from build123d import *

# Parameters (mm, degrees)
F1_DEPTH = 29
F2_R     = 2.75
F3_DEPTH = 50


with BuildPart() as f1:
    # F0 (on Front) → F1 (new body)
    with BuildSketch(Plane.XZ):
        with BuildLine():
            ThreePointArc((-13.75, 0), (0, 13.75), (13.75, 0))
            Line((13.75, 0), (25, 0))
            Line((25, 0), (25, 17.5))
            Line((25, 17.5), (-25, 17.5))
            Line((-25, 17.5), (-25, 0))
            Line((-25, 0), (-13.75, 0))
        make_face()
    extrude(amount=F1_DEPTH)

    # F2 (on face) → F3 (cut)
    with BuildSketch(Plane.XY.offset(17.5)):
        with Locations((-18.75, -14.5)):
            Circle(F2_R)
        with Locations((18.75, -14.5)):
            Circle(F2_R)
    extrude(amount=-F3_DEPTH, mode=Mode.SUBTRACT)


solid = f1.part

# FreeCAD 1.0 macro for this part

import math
import FreeCAD as App
import Part
import Sketcher

doc = App.newDocument("Part")
body = doc.addObject("PartDesign::Body", "Body")

# Sketch on XZ plane
sketch1 = body.newObject("Sketcher::SketchObject", "Sketch")
sketch1.AttachmentSupport = (doc.getObject("XZ_Plane"), [""])
sketch1.MapMode = "FlatFace"
sketch1.addGeometry([
    Part.ArcOfCircle(Part.Circle(App.Vector(0, 0, 0), App.Vector(0, 0, 1), 14), math.radians(0), math.radians(180)),  # 0
    Part.LineSegment(App.Vector(14, 0, 0), App.Vector(25, 0, 0)),  # 1
    Part.LineSegment(App.Vector(25, 0, 0), App.Vector(25, 18, 0)),  # 2
    Part.LineSegment(App.Vector(25, 18, 0), App.Vector(-25, 18, 0)),  # 3
    Part.LineSegment(App.Vector(-25, 18, 0), App.Vector(-25, 0, 0)),  # 4
    Part.LineSegment(App.Vector(-25, 0, 0), App.Vector(-14, 0, 0)),  # 5
], False)
sketch1.addConstraint([
    Sketcher.Constraint("Coincident", 0, 1, 1, 1),
    Sketcher.Constraint("Coincident", 1, 2, 2, 1),
    Sketcher.Constraint("Coincident", 2, 2, 3, 1),
    Sketcher.Constraint("Coincident", 3, 2, 4, 1),
    Sketcher.Constraint("Coincident", 4, 2, 5, 1),
    Sketcher.Constraint("Coincident", 5, 2, 0, 2),
    Sketcher.Constraint("Horizontal", 1),
    Sketcher.Constraint("Vertical", 2),
    Sketcher.Constraint("Horizontal", 3),
    Sketcher.Constraint("Vertical", 4),
    Sketcher.Constraint("Horizontal", 5),
    Sketcher.Constraint("Coincident", 0, 3, -1, 1),
    Sketcher.Constraint("Symmetric", 1, 2, 4, 2, -1, 1),
    Sketcher.Constraint("PointOnObject", 0, 1, -1),
    Sketcher.Constraint("DistanceX", 3, 2, 3, 1, 50.0),
    Sketcher.Constraint("Radius", 0, 13.75),
    Sketcher.Constraint("DistanceY", 2, 1, 2, 2, 17.5),
])
pad1 = body.newObject("PartDesign::Pad", "Pad")
pad1.Profile = sketch1
pad1.Length = 29

# Sketch on XY plane
sketch2 = body.newObject("Sketcher::SketchObject", "Sketch001")
sketch2.AttachmentSupport = (doc.getObject("XY_Plane"), [""])
sketch2.MapMode = "FlatFace"
sketch2.AttachmentOffset = App.Placement(App.Vector(0, 0, 17.5), App.Rotation())
sketch2.addGeometry([
    Part.Circle(App.Vector(-18.8, -14.5, 0), App.Vector(0, 0, 1), 2.8),
    Part.Circle(App.Vector(18.8, -14.5, 0), App.Vector(0, 0, 1), 2.8),
], False)
sketch2.addConstraint([
    Sketcher.Constraint("Equal", 0, 1),
    Sketcher.Constraint("Symmetric", 0, 3, 1, 3, -2),
    Sketcher.Constraint("Diameter", 0, 5.5),
    Sketcher.Constraint("DistanceY", 0, 3, -1, 1, 14.5),
    Sketcher.Constraint("DistanceX", 0, 3, 1, 3, 37.5),
])
pocket1 = body.newObject("PartDesign::Pocket", "Pocket")
pocket1.Profile = sketch2
pocket1.Length = 50

doc.recompute()
